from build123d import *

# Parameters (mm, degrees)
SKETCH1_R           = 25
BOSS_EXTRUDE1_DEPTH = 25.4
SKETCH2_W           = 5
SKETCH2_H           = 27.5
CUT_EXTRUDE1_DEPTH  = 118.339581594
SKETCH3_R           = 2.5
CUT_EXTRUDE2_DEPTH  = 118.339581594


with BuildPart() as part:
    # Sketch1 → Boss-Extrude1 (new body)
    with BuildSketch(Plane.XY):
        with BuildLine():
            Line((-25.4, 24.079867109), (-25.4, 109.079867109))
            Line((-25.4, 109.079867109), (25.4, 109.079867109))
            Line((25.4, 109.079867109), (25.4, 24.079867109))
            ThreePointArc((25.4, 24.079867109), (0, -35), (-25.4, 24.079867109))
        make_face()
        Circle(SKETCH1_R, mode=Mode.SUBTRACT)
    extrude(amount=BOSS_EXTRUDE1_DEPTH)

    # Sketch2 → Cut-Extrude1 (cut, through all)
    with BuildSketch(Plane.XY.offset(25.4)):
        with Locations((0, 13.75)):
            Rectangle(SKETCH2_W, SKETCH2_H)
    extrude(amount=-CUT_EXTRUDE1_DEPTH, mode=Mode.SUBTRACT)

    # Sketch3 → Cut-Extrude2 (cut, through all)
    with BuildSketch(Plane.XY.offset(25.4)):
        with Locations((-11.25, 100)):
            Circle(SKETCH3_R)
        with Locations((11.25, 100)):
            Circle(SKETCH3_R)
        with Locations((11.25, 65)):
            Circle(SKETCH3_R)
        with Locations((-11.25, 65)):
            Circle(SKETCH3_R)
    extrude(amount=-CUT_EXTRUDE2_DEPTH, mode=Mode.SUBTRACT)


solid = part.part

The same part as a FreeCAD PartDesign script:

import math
import FreeCAD as App
import Part
import Sketcher
from FreeCAD import Vector


def add_polygon(sketch, points):
    """Adds a closed chain of lines whose ends are joined by coincident constraints."""
    first, n = sketch.GeometryCount, len(points)
    for a, b in zip(points, points[1:] + points[:1]):
        sketch.addGeometry(Part.LineSegment(App.Vector(*a, 0), App.Vector(*b, 0)), False)
    for i in range(n):
        sketch.addConstraint(Sketcher.Constraint("Coincident", first + i, 2, first + (i + 1) % n, 1))

doc = App.newDocument("Part")
body = doc.addObject("PartDesign::Body", "Body")

sketch1 = doc.addObject("Sketcher::SketchObject", "Sketch")
body.addObject(sketch1)
sketch1.AttachmentSupport = (doc.XY_Plane, [""])
sketch1.MapMode = "FlatFace"
sketch1.addGeometry([
    Part.LineSegment(Vector(-25, 109, 0), Vector(-25, 24, 0)),
    Part.ArcOfCircle(Part.Circle(Vector(0, 0, 0), Vector(0, 0, 1), 35), math.radians(137), math.radians(403)),
    Part.LineSegment(Vector(25, 24, 0), Vector(25, 109, 0)),
    Part.LineSegment(Vector(25, 109, 0), Vector(-25, 109, 0)),
    Part.Circle(Vector(0, 0, 0), Vector(0, 0, 1), 25),
], False)
sketch1.addConstraint([
    Sketcher.Constraint("Coincident", 0, 2, 1, 1),
    Sketcher.Constraint("Coincident", 1, 2, 2, 1),
    Sketcher.Constraint("Coincident", 2, 2, 3, 1),
    Sketcher.Constraint("Coincident", 3, 2, 0, 1),
    Sketcher.Constraint("Vertical", 0),
    Sketcher.Constraint("Vertical", 2),
    Sketcher.Constraint("Horizontal", 3),
    Sketcher.Constraint("Coincident", 1, 3, -1, 1),
    Sketcher.Constraint("Coincident", 4, 3, -1, 1),
    Sketcher.Constraint("Horizontal", 0, 2, 1, 2),
    Sketcher.Constraint("Diameter", 4, 50.0),
    Sketcher.Constraint("Radius", 1, 35.0),
    Sketcher.Constraint("DistanceY", 0, 2, 0, 1, 85.0),
    Sketcher.Constraint("DistanceX", 3, 2, 3, 1, 50.8),
])
pad1 = doc.addObject("PartDesign::Pad", "Pad")
body.addObject(pad1)
pad1.Profile = sketch1
pad1.Length = 25.4

sketch2 = doc.addObject("Sketcher::SketchObject", "Sketch001")
body.addObject(sketch2)
sketch2.AttachmentSupport = (doc.XY_Plane, [""])
sketch2.MapMode = "FlatFace"
sketch2.AttachmentOffset = App.Placement(Vector(0, 0, 25.4), App.Rotation())
add_polygon(sketch2, [(-2, 28), (-2, 0), (2, 0), (2, 28)])
sketch2.addConstraint([
    Sketcher.Constraint("Vertical", 0),
    Sketcher.Constraint("Horizontal", 1),
    Sketcher.Constraint("Vertical", 2),
    Sketcher.Constraint("Horizontal", 3),
    Sketcher.Constraint("Symmetric", 0, 2, 1, 2, -1, 1),
    Sketcher.Constraint("DistanceX", 1, 1, 1, 2, 5.0),
    Sketcher.Constraint("DistanceY", 0, 2, 0, 1, 27.5),
])
pocket1 = doc.addObject("PartDesign::Pocket", "Pocket")
body.addObject(pocket1)
pocket1.Profile = sketch2
pocket1.Type = "ThroughAll"

sketch3 = doc.addObject("Sketcher::SketchObject", "Sketch002")
body.addObject(sketch3)
sketch3.AttachmentSupport = (doc.XY_Plane, [""])
sketch3.MapMode = "FlatFace"
sketch3.AttachmentOffset = App.Placement(Vector(0, 0, 25.4), App.Rotation())
sketch3.addGeometry([
    Part.Circle(Vector(-11.2, 100, 0), Vector(0, 0, 1), 2.5),
    Part.Circle(Vector(11.2, 100, 0), Vector(0, 0, 1), 2.5),
    Part.Circle(Vector(11.2, 65, 0), Vector(0, 0, 1), 2.5),
    Part.Circle(Vector(-11.2, 65, 0), Vector(0, 0, 1), 2.5),
], False)
sketch3.addConstraint([
    Sketcher.Constraint("Equal", 0, 1),
    Sketcher.Constraint("Equal", 1, 2),
    Sketcher.Constraint("Equal", 2, 3),
    Sketcher.Constraint("Symmetric", 0, 3, 1, 3, -2),
    Sketcher.Constraint("Symmetric", 2, 3, 3, 3, -2),
    Sketcher.Constraint("Vertical", 1, 3, 2, 3),
    Sketcher.Constraint("Diameter", 0, 5.0),
    Sketcher.Constraint("DistanceY", -1, 1, 0, 3, 100.0),
    Sketcher.Constraint("DistanceY", -1, 1, 2, 3, 65.0),
    Sketcher.Constraint("DistanceX", 0, 3, 1, 3, 22.5),
])
pocket2 = doc.addObject("PartDesign::Pocket", "Pocket001")
body.addObject(pocket2)
pocket2.Profile = sketch3
pocket2.Type = "ThroughAll"

doc.recompute()
